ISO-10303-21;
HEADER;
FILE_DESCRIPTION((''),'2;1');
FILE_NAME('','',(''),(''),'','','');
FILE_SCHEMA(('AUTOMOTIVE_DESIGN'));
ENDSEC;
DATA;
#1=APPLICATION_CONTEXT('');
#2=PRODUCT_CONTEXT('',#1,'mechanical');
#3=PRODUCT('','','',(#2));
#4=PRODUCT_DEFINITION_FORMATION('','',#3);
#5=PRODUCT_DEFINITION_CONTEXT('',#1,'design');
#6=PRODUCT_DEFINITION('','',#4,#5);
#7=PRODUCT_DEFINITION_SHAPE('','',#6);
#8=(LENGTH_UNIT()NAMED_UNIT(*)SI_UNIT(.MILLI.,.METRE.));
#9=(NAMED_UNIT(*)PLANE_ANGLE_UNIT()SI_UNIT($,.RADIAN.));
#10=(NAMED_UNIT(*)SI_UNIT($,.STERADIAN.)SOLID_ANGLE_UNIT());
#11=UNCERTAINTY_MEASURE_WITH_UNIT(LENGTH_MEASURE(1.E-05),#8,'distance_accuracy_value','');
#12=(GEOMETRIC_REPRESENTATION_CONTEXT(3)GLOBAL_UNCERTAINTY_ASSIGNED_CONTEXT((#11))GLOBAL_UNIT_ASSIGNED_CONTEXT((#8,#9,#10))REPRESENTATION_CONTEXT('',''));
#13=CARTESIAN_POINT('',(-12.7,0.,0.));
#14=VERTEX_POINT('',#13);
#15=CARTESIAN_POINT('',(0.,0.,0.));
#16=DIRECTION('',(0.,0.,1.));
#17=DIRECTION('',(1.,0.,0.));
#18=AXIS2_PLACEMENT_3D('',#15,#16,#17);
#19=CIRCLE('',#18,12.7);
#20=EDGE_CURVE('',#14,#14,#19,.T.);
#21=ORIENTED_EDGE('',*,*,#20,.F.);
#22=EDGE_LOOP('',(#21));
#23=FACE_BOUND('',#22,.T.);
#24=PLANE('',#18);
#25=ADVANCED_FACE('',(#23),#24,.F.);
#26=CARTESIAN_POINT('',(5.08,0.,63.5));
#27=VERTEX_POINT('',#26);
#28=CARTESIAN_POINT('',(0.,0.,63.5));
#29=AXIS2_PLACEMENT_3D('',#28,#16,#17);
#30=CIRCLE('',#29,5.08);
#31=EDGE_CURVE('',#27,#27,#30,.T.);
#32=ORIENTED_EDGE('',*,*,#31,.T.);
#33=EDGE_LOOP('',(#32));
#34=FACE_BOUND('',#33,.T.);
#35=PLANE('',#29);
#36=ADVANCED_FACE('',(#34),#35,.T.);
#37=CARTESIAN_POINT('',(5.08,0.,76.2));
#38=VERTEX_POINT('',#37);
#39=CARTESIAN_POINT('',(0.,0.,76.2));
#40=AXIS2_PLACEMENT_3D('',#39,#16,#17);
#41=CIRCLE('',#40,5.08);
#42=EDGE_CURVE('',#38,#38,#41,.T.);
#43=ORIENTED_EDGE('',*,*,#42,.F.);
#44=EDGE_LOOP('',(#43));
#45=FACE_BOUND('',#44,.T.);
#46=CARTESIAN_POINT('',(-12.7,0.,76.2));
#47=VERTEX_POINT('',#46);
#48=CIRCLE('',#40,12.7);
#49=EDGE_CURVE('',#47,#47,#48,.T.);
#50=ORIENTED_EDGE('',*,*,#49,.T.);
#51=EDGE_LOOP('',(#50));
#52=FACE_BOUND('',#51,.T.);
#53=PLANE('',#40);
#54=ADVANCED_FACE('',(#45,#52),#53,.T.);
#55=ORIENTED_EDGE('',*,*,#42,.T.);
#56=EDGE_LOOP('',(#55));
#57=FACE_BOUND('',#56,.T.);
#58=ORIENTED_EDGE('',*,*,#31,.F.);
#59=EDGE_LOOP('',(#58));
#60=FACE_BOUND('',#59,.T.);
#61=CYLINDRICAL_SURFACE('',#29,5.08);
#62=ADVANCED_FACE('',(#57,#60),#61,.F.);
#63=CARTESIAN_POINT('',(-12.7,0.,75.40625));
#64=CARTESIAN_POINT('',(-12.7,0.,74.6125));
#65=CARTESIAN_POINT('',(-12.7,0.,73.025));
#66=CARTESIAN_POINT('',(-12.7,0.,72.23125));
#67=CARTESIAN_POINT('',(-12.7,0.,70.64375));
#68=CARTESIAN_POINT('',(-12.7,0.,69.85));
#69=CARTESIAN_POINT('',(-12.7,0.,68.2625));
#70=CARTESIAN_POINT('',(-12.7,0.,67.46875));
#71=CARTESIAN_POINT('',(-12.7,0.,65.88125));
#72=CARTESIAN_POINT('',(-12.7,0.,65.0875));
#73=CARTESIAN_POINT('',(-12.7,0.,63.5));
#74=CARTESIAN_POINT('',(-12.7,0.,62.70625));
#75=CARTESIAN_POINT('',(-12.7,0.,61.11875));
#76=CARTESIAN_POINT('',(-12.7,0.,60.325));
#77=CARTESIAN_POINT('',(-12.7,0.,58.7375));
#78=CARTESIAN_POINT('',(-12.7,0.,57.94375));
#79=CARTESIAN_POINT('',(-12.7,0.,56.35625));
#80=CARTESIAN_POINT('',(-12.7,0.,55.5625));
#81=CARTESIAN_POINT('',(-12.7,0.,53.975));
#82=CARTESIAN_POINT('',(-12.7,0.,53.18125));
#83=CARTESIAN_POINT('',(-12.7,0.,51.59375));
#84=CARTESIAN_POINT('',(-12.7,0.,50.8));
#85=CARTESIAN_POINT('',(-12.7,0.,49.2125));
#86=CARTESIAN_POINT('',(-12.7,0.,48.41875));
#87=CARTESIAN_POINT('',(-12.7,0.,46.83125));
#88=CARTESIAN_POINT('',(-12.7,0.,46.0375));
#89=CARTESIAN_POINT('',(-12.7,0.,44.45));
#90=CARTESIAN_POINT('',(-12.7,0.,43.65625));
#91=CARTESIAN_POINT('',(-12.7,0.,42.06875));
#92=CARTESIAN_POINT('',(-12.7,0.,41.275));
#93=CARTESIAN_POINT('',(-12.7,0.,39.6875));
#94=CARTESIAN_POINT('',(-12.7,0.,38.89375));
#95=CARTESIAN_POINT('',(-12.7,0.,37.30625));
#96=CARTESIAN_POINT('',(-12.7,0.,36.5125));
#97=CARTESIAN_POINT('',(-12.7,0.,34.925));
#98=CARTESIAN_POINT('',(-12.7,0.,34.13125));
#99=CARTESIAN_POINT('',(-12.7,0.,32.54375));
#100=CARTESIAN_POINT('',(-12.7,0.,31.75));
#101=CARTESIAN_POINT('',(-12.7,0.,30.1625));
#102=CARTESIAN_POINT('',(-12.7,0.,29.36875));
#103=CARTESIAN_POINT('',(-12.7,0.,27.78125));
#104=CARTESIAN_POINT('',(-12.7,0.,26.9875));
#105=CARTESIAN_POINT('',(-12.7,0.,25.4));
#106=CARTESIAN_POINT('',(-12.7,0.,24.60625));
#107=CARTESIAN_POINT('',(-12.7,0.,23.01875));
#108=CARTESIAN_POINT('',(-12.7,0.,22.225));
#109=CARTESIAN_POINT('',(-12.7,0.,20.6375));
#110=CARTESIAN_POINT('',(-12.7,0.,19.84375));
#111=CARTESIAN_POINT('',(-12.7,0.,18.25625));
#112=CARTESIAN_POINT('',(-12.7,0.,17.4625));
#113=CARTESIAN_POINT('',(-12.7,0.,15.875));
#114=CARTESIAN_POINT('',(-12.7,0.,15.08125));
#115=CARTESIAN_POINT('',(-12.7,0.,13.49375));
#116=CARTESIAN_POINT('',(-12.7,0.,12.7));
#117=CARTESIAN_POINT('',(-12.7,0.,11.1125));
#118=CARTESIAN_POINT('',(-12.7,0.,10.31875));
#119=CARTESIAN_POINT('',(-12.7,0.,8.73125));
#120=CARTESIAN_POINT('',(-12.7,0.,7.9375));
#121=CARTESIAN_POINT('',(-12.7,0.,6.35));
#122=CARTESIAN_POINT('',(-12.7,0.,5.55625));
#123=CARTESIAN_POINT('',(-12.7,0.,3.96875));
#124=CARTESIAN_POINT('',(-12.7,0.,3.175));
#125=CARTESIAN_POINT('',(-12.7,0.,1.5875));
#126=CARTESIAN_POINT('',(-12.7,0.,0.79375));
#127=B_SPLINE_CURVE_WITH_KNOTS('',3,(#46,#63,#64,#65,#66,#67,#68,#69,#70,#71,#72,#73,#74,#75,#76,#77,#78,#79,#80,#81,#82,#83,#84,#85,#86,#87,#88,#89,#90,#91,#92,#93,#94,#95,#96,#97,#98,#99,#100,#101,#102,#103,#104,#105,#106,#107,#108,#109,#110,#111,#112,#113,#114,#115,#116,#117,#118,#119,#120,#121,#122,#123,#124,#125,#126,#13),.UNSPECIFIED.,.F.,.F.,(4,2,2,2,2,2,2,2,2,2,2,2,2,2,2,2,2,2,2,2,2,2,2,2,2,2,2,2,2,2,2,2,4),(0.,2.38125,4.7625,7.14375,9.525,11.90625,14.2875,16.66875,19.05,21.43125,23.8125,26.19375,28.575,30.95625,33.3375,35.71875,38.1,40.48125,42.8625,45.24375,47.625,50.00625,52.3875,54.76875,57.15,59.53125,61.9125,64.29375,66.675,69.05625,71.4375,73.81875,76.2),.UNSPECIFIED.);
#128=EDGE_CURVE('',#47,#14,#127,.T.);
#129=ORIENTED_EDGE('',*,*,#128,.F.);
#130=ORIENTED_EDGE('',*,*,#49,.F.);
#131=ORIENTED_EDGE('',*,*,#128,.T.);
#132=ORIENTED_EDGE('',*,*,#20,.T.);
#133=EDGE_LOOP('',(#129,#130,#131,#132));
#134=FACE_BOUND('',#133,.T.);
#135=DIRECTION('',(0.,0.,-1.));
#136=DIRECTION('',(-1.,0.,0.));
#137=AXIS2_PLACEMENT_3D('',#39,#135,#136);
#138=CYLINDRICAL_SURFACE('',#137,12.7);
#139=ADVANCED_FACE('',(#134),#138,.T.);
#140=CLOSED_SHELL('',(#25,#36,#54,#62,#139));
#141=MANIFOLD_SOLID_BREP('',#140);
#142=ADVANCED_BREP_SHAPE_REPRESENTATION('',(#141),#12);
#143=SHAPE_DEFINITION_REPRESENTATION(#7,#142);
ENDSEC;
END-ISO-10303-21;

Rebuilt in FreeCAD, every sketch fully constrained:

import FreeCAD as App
import Part
import Sketcher
Q = App.Units.Quantity

doc = App.newDocument("Part")
body = doc.addObject("PartDesign::Body", "Body")

# Sketch on XY plane
sketch1 = body.newObject("Sketcher::SketchObject", "Sketch")
sketch1.AttachmentSupport = (doc.getObject("XY_Plane"), [""])
sketch1.MapMode = "FlatFace"
sketch1.addGeometry(Part.Circle(App.Vector(0, 0, 0), App.Vector(0, 0, 1), 13), False)
sketch1.addConstraint([
    Sketcher.Constraint("Coincident", 0, 3, -1, 1),
    Sketcher.Constraint("Diameter", 0, Q("1 in")),
])
pad1 = body.newObject("PartDesign::Pad", "Pad")
pad1.Profile = sketch1
pad1.Length = Q("3 in")

# Sketch on XY plane
sketch2 = body.newObject("Sketcher::SketchObject", "Sketch001")
sketch2.AttachmentSupport = (doc.getObject("XY_Plane"), [""])
sketch2.MapMode = "FlatFace"
sketch2.AttachmentOffset = App.Placement(App.Vector(0, 0, 3 * 25.4), App.Rotation())
sketch2.addGeometry(Part.Circle(App.Vector(0, 0, 0), App.Vector(0, 0, 1), 5), False)
sketch2.addConstraint([
    Sketcher.Constraint("Coincident", 0, 3, -1, 1),
    Sketcher.Constraint("Diameter", 0, Q("0.4 in")),
])
pocket1 = body.newObject("PartDesign::Pocket", "Pocket")
pocket1.Profile = sketch2
pocket1.Length = Q("0.5 in")

doc.recompute()
